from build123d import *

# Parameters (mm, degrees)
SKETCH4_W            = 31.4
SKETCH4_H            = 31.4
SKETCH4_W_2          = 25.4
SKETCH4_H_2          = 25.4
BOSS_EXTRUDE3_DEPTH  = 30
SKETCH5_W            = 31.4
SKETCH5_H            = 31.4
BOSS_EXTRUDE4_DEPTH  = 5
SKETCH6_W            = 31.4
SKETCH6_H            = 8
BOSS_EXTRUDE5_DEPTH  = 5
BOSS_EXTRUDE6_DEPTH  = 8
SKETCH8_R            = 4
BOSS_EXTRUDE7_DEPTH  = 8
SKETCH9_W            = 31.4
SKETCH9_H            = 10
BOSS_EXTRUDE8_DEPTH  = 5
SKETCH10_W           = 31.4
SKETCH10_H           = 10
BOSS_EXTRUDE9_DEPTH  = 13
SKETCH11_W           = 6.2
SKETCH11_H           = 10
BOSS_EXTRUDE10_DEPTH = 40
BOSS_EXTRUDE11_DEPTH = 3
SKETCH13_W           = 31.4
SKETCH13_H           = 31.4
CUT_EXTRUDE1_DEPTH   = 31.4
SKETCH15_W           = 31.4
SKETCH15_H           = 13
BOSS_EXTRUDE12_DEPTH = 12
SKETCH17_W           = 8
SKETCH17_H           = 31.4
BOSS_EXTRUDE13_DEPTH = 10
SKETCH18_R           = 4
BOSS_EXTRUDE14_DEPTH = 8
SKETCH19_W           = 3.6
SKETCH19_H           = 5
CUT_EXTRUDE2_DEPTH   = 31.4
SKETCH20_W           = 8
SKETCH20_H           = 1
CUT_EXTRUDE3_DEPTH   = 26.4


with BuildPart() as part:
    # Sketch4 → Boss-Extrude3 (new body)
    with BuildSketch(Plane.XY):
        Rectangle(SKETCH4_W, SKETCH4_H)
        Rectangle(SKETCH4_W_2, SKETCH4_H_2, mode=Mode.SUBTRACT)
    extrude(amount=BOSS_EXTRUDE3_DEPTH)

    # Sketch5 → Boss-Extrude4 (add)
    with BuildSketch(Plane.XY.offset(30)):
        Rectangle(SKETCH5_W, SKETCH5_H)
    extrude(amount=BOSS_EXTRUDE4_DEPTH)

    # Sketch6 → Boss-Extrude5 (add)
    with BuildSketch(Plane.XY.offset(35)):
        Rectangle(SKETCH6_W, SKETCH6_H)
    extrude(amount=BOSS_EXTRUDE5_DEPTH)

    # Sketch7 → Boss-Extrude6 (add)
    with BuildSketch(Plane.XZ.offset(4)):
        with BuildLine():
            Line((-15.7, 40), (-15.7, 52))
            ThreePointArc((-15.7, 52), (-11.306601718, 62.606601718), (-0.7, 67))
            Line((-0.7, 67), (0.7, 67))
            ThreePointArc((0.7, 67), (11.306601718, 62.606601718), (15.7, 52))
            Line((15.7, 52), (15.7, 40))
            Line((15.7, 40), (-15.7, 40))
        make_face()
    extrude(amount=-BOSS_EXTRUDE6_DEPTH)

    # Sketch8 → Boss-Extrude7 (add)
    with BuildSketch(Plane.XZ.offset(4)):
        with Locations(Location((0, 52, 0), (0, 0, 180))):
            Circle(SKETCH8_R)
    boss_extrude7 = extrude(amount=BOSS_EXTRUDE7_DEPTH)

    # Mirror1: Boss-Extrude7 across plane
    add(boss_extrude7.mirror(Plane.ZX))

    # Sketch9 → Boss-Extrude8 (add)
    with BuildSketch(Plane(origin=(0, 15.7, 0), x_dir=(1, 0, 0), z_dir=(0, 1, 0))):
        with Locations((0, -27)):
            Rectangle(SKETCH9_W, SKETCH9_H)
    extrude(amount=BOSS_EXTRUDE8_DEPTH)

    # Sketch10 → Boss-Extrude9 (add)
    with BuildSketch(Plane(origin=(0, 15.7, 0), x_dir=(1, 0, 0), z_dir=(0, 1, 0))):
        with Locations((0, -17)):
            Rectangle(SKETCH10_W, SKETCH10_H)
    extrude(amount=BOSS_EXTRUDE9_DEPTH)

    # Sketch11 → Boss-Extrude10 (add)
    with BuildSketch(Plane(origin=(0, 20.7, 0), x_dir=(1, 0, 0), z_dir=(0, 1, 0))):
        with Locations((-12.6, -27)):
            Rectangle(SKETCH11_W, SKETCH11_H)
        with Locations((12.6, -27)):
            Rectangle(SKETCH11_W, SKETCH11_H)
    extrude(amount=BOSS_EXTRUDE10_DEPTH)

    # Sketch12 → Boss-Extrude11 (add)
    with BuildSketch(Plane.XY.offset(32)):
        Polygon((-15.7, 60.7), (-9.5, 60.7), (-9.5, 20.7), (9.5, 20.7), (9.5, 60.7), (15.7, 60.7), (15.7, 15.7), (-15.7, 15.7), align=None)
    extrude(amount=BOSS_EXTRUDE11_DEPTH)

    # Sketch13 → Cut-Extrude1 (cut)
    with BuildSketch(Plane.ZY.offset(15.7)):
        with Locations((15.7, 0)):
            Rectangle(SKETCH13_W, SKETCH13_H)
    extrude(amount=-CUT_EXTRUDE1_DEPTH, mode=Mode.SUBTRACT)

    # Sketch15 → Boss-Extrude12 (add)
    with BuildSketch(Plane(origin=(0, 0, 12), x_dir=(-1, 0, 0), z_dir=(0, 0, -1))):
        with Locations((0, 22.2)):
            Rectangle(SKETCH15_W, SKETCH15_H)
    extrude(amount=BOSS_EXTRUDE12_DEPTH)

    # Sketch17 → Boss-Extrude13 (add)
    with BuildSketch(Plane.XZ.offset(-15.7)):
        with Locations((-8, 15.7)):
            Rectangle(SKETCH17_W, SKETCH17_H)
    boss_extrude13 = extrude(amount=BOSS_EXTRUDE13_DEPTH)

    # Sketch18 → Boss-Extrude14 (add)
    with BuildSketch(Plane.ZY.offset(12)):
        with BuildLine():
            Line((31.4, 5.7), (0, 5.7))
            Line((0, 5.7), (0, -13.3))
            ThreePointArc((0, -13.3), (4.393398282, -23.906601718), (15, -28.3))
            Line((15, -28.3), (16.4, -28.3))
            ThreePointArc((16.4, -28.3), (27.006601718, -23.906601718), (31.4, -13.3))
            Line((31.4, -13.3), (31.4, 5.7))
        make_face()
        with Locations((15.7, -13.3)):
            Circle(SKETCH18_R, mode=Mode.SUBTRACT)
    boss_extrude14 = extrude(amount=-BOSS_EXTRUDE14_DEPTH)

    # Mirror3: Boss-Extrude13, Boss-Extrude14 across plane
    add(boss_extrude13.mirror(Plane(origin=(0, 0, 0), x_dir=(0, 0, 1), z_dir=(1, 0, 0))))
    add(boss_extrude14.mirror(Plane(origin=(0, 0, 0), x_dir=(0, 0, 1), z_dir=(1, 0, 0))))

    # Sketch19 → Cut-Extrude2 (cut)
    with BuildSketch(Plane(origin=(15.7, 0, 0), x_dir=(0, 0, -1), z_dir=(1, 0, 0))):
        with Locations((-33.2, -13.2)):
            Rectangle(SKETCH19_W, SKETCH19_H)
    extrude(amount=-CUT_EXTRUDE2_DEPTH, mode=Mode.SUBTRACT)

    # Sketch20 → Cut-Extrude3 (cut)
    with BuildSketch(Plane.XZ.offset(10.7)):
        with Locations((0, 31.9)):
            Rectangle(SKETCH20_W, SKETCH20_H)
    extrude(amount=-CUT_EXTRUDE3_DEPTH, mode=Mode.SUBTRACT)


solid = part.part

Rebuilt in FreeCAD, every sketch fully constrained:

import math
import FreeCAD as App
import Part
import Sketcher
Q = App.Units.Quantity


def add_polygon(sketch, points):
    """Adds a closed chain of lines whose ends are joined by coincident constraints."""
    first, n = sketch.GeometryCount, len(points)
    for a, b in zip(points, points[1:] + points[:1]):
        sketch.addGeometry(Part.LineSegment(App.Vector(*a, 0), App.Vector(*b, 0)), False)
    for i in range(n):
        sketch.addConstraint(Sketcher.Constraint("Coincident", first + i, 2, first + (i + 1) % n, 1))

doc = App.newDocument("Part")
body = doc.addObject("PartDesign::Body", "Body")

# Sketch on XY plane
sketch1 = body.newObject("Sketcher::SketchObject", "Sketch")
sketch1.AttachmentSupport = (doc.getObject("XY_Plane"), [""])
sketch1.MapMode = "FlatFace"
add_polygon(sketch1, [(-16, 16), (-16, -16), (16, -16), (16, 16)])  # lines 0-3
add_polygon(sketch1, [(13, -13), (-13, -13), (-13, 13), (13, 13)])  # lines 4-7
sketch1.addConstraint(Sketcher.Constraint("Vertical", 0))
sketch1.addConstraint(Sketcher.Constraint("Horizontal", 1))
sketch1.addConstraint(Sketcher.Constraint("Vertical", 2))
sketch1.addConstraint(Sketcher.Constraint("Horizontal", 3))
sketch1.addConstraint(Sketcher.Constraint("Horizontal", 4))
sketch1.addConstraint(Sketcher.Constraint("Vertical", 5))
sketch1.addConstraint(Sketcher.Constraint("Horizontal", 6))
sketch1.addConstraint(Sketcher.Constraint("Vertical", 7))
sketch1.addConstraint(Sketcher.Constraint("Symmetric", 0, 2, 2, 2, -1, 1))
sketch1.addConstraint(Sketcher.Constraint("Symmetric", 4, 2, 6, 2, -1, 1))
sketch1.addConstraint(Sketcher.Constraint("Equal", 3, 0))
sketch1.addConstraint(Sketcher.Constraint("Equal", 6, 5))
sketch1.addConstraint(Sketcher.Constraint("DistanceX", 1, 1, 1, 2, Q("31.4 mm")))
sketch1.addConstraint(Sketcher.Constraint("DistanceX", 4, 2, 4, 1, Q("25.4 mm")))
pad1 = body.newObject("PartDesign::Pad", "Pad")
pad1.Profile = sketch1
pad1.Length = 30

# Sketch on XY plane
sketch2 = body.newObject("Sketcher::SketchObject", "Sketch001")
sketch2.AttachmentSupport = (doc.getObject("XY_Plane"), [""])
sketch2.MapMode = "FlatFace"
sketch2.AttachmentOffset = App.Placement(App.Vector(0, 0, 30), App.Rotation())
add_polygon(sketch2, [(-16, 16), (-16, -16), (16, -16), (16, 16)])  # lines 0-3
sketch2.addConstraint(Sketcher.Constraint("Vertical", 0))
sketch2.addConstraint(Sketcher.Constraint("Horizontal", 1))
sketch2.addConstraint(Sketcher.Constraint("Vertical", 2))
sketch2.addConstraint(Sketcher.Constraint("Horizontal", 3))
sketch2.addConstraint(Sketcher.Constraint("Symmetric", 0, 2, 2, 2, -1, 1))
sketch2.addConstraint(Sketcher.Constraint("Equal", 3, 0))
sketch2.addConstraint(Sketcher.Constraint("DistanceX", 1, 1, 1, 2, Q("31.4 mm")))
pad2 = body.newObject("PartDesign::Pad", "Pad001")
pad2.Profile = sketch2
pad2.Length = 5

# Sketch on XY plane
sketch3 = body.newObject("Sketcher::SketchObject", "Sketch002")
sketch3.AttachmentSupport = (doc.getObject("XY_Plane"), [""])
sketch3.MapMode = "FlatFace"
sketch3.AttachmentOffset = App.Placement(App.Vector(0, 0, 35), App.Rotation())
add_polygon(sketch3, [(-16, 4), (-16, -4), (16, -4), (16, 4)])  # lines 0-3
sketch3.addConstraint(Sketcher.Constraint("Vertical", 0))
sketch3.addConstraint(Sketcher.Constraint("Horizontal", 1))
sketch3.addConstraint(Sketcher.Constraint("Vertical", 2))
sketch3.addConstraint(Sketcher.Constraint("Horizontal", 3))
sketch3.addConstraint(Sketcher.Constraint("Symmetric", 0, 2, 2, 2, -1, 1))
sketch3.addConstraint(Sketcher.Constraint("DistanceY", 0, 2, 0, 1, Q("8 mm")))
sketch3.addConstraint(Sketcher.Constraint("DistanceX", 1, 1, 1, 2, Q("31.4 mm")))
pad3 = body.newObject("PartDesign::Pad", "Pad002")
pad3.Profile = sketch3
pad3.Length = 5

# Sketch on XZ plane
sketch4 = body.newObject("Sketcher::SketchObject", "Sketch003")
sketch4.AttachmentSupport = (doc.getObject("XZ_Plane"), [""])
sketch4.MapMode = "FlatFace"
sketch4.AttachmentOffset = App.Placement(App.Vector(0, 0, 4), App.Rotation())
sketch4.addGeometry(Part.LineSegment(App.Vector(-15.7, 52, 0), App.Vector(-15.7, 40, 0)), False)
sketch4.addGeometry(Part.LineSegment(App.Vector(-15.7, 40, 0), App.Vector(15.7, 40, 0)), False)
sketch4.addGeometry(Part.LineSegment(App.Vector(15.7, 40, 0), App.Vector(15.7, 52, 0)), False)
sketch4.addGeometry(Part.ArcOfCircle(Part.Circle(App.Vector(0.7, 52, 0), App.Vector(0, 0, 1), 15), math.radians(0), math.radians(90)), False)
sketch4.addGeometry(Part.LineSegment(App.Vector(0.7, 67, 0), App.Vector(-0.7, 67, 0)), False)
sketch4.addGeometry(Part.ArcOfCircle(Part.Circle(App.Vector(-0.7, 52, 0), App.Vector(0, 0, 1), 15), math.radians(90), math.radians(180)), False)
sketch4.addConstraint(Sketcher.Constraint("Coincident", 0, 2, 1, 1))
sketch4.addConstraint(Sketcher.Constraint("Coincident", 1, 2, 2, 1))
sketch4.addConstraint(Sketcher.Constraint("Tangent", 2, 2, 3, 1))
sketch4.addConstraint(Sketcher.Constraint("Tangent", 3, 2, 4, 1))
sketch4.addConstraint(Sketcher.Constraint("Tangent", 4, 2, 5, 1))
sketch4.addConstraint(Sketcher.Constraint("Tangent", 5, 2, 0, 1))
sketch4.addConstraint(Sketcher.Constraint("Vertical", 0))
sketch4.addConstraint(Sketcher.Constraint("Horizontal", 1))
sketch4.addConstraint(Sketcher.Constraint("Vertical", 2))
sketch4.addConstraint(Sketcher.Constraint("Horizontal", 4))
sketch4.addConstraint(Sketcher.Constraint("Equal", 3, 5))
sketch4.addConstraint(Sketcher.Constraint("Radius", 3, Q("15 mm")))
sketch4.addConstraint(Sketcher.Constraint("DistanceY", 0, 2, 0, 1, Q("12 mm")))
sketch4.addConstraint(Sketcher.Constraint("DistanceX", 1, 1, 1, 2, Q("31.4 mm")))
sketch4.addConstraint(Sketcher.Constraint("DistanceY", -1, 1, 3, 3, Q("52 mm")))
sketch4.addConstraint(Sketcher.Constraint("DistanceX", -1, 1, 3, 3, Q("0.7 mm")))
pad4 = body.newObject("PartDesign::Pad", "Pad003")
pad4.Profile = sketch4
pad4.Length = 8
pad4.Reversed = True

# Sketch on XZ plane
sketch5 = body.newObject("Sketcher::SketchObject", "Sketch004")
sketch5.AttachmentSupport = (doc.getObject("XZ_Plane"), [""])
sketch5.MapMode = "FlatFace"
sketch5.AttachmentOffset = App.Placement(App.Vector(0, 0, 4), App.Rotation())
sketch5.addGeometry(Part.Circle(App.Vector(0, 52, 0), App.Vector(0, 0, 1), 4), False)
sketch5.addConstraint(Sketcher.Constraint("PointOnObject", 0, 3, -2))
sketch5.addConstraint(Sketcher.Constraint("Diameter", 0, Q("8 mm")))
sketch5.addConstraint(Sketcher.Constraint("DistanceY", -1, 1, 0, 3, Q("52 mm")))
pad5 = body.newObject("PartDesign::Pad", "Pad004")
pad5.Profile = sketch5
pad5.Length = 8
doc.recompute()

mirrored = body.newObject("PartDesign::Mirrored", "Mirrored")
mirrored.Originals = [pad5]
mirrored.MirrorPlane = (doc.getObject("XZ_Plane"), [""])
body.Tip = mirrored

# Sketch on XZ plane
sketch6 = body.newObject("Sketcher::SketchObject", "Sketch005")
sketch6.AttachmentSupport = (doc.getObject("XZ_Plane"), [""])
sketch6.MapMode = "FlatFace"
sketch6.AttachmentOffset = App.Placement(App.Vector(0, 0, -15.7), App.Rotation())
add_polygon(sketch6, [(-16, 22), (-16, 32), (16, 32), (16, 22)])  # lines 0-3
sketch6.addConstraint(Sketcher.Constraint("Vertical", 0))
sketch6.addConstraint(Sketcher.Constraint("Horizontal", 1))
sketch6.addConstraint(Sketcher.Constraint("Vertical", 2))
sketch6.addConstraint(Sketcher.Constraint("Horizontal", 3))
sketch6.addConstraint(Sketcher.Constraint("DistanceY", 0, 1, 0, 2, Q("10 mm")))
sketch6.addConstraint(Sketcher.Constraint("DistanceX", 1, 1, 1, 2, Q("31.4 mm")))
sketch6.addConstraint(Sketcher.Constraint("DistanceY", -1, 1, 0, 2, Q("32 mm")))
sketch6.addConstraint(Sketcher.Constraint("DistanceX", 0, 2, -1, 1, Q("15.7 mm")))
pad6 = body.newObject("PartDesign::Pad", "Pad005")
pad6.Profile = sketch6
pad6.Length = 5
pad6.Reversed = True

# Sketch on XZ plane
sketch7 = body.newObject("Sketcher::SketchObject", "Sketch006")
sketch7.AttachmentSupport = (doc.getObject("XZ_Plane"), [""])
sketch7.MapMode = "FlatFace"
sketch7.AttachmentOffset = App.Placement(App.Vector(0, 0, -15.7), App.Rotation())
add_polygon(sketch7, [(-16, 12), (-16, 22), (16, 22), (16, 12)])  # lines 0-3
sketch7.addConstraint(Sketcher.Constraint("Vertical", 0))
sketch7.addConstraint(Sketcher.Constraint("Horizontal", 1))
sketch7.addConstraint(Sketcher.Constraint("Vertical", 2))
sketch7.addConstraint(Sketcher.Constraint("Horizontal", 3))
sketch7.addConstraint(Sketcher.Constraint("DistanceY", 0, 1, 0, 2, Q("10 mm")))
sketch7.addConstraint(Sketcher.Constraint("DistanceX", 1, 1, 1, 2, Q("31.4 mm")))
sketch7.addConstraint(Sketcher.Constraint("DistanceY", -1, 1, 0, 2, Q("22 mm")))
sketch7.addConstraint(Sketcher.Constraint("DistanceX", 0, 2, -1, 1, Q("15.7 mm")))
pad7 = body.newObject("PartDesign::Pad", "Pad006")
pad7.Profile = sketch7
pad7.Length = 13
pad7.Reversed = True

# Sketch on XZ plane
sketch8 = body.newObject("Sketcher::SketchObject", "Sketch007")
sketch8.AttachmentSupport = (doc.getObject("XZ_Plane"), [""])
sketch8.MapMode = "FlatFace"
sketch8.AttachmentOffset = App.Placement(App.Vector(0, 0, -20.7), App.Rotation())
add_polygon(sketch8, [(-16, 22), (-16, 32), (-10, 32), (-10, 22)])  # lines 0-3
add_polygon(sketch8, [(10, 22), (10, 32), (16, 32), (16, 22)])  # lines 4-7
sketch8.addConstraint(Sketcher.Constraint("Vertical", 0))
sketch8.addConstraint(Sketcher.Constraint("Horizontal", 1))
sketch8.addConstraint(Sketcher.Constraint("Vertical", 2))
sketch8.addConstraint(Sketcher.Constraint("Horizontal", 3))
sketch8.addConstraint(Sketcher.Constraint("Vertical", 4))
sketch8.addConstraint(Sketcher.Constraint("Horizontal", 5))
sketch8.addConstraint(Sketcher.Constraint("Vertical", 6))
sketch8.addConstraint(Sketcher.Constraint("Horizontal", 7))
sketch8.addConstraint(Sketcher.Constraint("Symmetric", 1, 2, 4, 2, -2))
sketch8.addConstraint(Sketcher.Constraint("Symmetric", 3, 2, 6, 2, -2))
sketch8.addConstraint(Sketcher.Constraint("DistanceY", 0, 1, 0, 2, Q("10 mm")))
sketch8.addConstraint(Sketcher.Constraint("DistanceX", 1, 1, 1, 2, Q("6.2 mm")))
sketch8.addConstraint(Sketcher.Constraint("DistanceY", -1, 1, 0, 2, Q("32 mm")))
sketch8.addConstraint(Sketcher.Constraint("DistanceX", 1, 2, 4, 2, Q("19 mm")))
pad8 = body.newObject("PartDesign::Pad", "Pad007")
pad8.Profile = sketch8
pad8.Length = 40
pad8.Reversed = True

# Sketch on XY plane
sketch9 = body.newObject("Sketcher::SketchObject", "Sketch008")
sketch9.AttachmentSupport = (doc.getObject("XY_Plane"), [""])
sketch9.MapMode = "FlatFace"
sketch9.AttachmentOffset = App.Placement(App.Vector(0, 0, 32), App.Rotation())
add_polygon(sketch9, [(-10, 61), (-16, 61), (-16, 16), (16, 16), (16, 61), (10, 61), (10, 21), (-10, 21)])  # lines 0-7
sketch9.addConstraint(Sketcher.Constraint("Horizontal", 0))
sketch9.addConstraint(Sketcher.Constraint("Vertical", 1))
sketch9.addConstraint(Sketcher.Constraint("Horizontal", 2))
sketch9.addConstraint(Sketcher.Constraint("Vertical", 3))
sketch9.addConstraint(Sketcher.Constraint("Horizontal", 4))
sketch9.addConstraint(Sketcher.Constraint("Vertical", 5))
sketch9.addConstraint(Sketcher.Constraint("Horizontal", 6))
sketch9.addConstraint(Sketcher.Constraint("Vertical", 7))
sketch9.addConstraint(Sketcher.Constraint("Symmetric", 0, 2, 3, 2, -2))
sketch9.addConstraint(Sketcher.Constraint("Equal", 0, 4))
sketch9.addConstraint(Sketcher.Constraint("DistanceX", 6, 2, 6, 1, Q("19 mm")))
sketch9.addConstraint(Sketcher.Constraint("DistanceY", 1, 2, 1, 1, Q("45 mm")))
sketch9.addConstraint(Sketcher.Constraint("DistanceY", 5, 2, 5, 1, Q("40 mm")))
sketch9.addConstraint(Sketcher.Constraint("DistanceX", 0, 2, 0, 1, Q("6.2 mm")))
sketch9.addConstraint(Sketcher.Constraint("DistanceY", -1, 1, 0, 2, Q("60.7 mm")))
pad9 = body.newObject("PartDesign::Pad", "Pad008")
pad9.Profile = sketch9
pad9.Length = 3

# Sketch on YZ plane
sketch10 = body.newObject("Sketcher::SketchObject", "Sketch009")
sketch10.AttachmentSupport = (doc.getObject("YZ_Plane"), [""])
sketch10.MapMode = "FlatFace"
sketch10.AttachmentOffset = App.Placement(App.Vector(0, 0, -15.7), App.Rotation())
add_polygon(sketch10, [(16, 0), (-16, 0), (-16, 31), (16, 31)])  # lines 0-3
sketch10.addConstraint(Sketcher.Constraint("Horizontal", 0))
sketch10.addConstraint(Sketcher.Constraint("Vertical", 1))
sketch10.addConstraint(Sketcher.Constraint("Horizontal", 2))
sketch10.addConstraint(Sketcher.Constraint("Vertical", 3))
sketch10.addConstraint(Sketcher.Constraint("Symmetric", 0, 2, 3, 2, -1, 1))
sketch10.addConstraint(Sketcher.Constraint("Equal", 2, 1))
sketch10.addConstraint(Sketcher.Constraint("DistanceX", 0, 2, 0, 1, Q("31.4 mm")))
pocket1 = body.newObject("PartDesign::Pocket", "Pocket")
pocket1.Profile = sketch10
pocket1.Length = 31.4
pocket1.Reversed = True

# Sketch on XY plane
sketch11 = body.newObject("Sketcher::SketchObject", "Sketch010")
sketch11.AttachmentSupport = (doc.getObject("XY_Plane"), [""])
sketch11.MapMode = "FlatFace"
sketch11.AttachmentOffset = App.Placement(App.Vector(0, 0, 12), App.Rotation())
add_polygon(sketch11, [(16, 29), (16, 16), (-16, 16), (-16, 29)])  # lines 0-3
sketch11.addConstraint(Sketcher.Constraint("Vertical", 0))
sketch11.addConstraint(Sketcher.Constraint("Horizontal", 1))
sketch11.addConstraint(Sketcher.Constraint("Vertical", 2))
sketch11.addConstraint(Sketcher.Constraint("Horizontal", 3))
sketch11.addConstraint(Sketcher.Constraint("DistanceY", 0, 2, 0, 1, Q("13 mm")))
sketch11.addConstraint(Sketcher.Constraint("DistanceX", 1, 2, 1, 1, Q("31.4 mm")))
sketch11.addConstraint(Sketcher.Constraint("DistanceX", -1, 1, 0, 2, Q("15.7 mm")))
sketch11.addConstraint(Sketcher.Constraint("DistanceY", -1, 1, 0, 2, Q("15.7 mm")))
pad10 = body.newObject("PartDesign::Pad", "Pad009")
pad10.Profile = sketch11
pad10.Length = 12
pad10.Reversed = True

# Sketch on XZ plane
sketch12 = body.newObject("Sketcher::SketchObject", "Sketch011")
sketch12.AttachmentSupport = (doc.getObject("XZ_Plane"), [""])
sketch12.MapMode = "FlatFace"
sketch12.AttachmentOffset = App.Placement(App.Vector(0, 0, -15.7), App.Rotation())
add_polygon(sketch12, [(-12, 31), (-12, 0), (-4, 0), (-4, 31)])  # lines 0-3
sketch12.addConstraint(Sketcher.Constraint("Vertical", 0))
sketch12.addConstraint(Sketcher.Constraint("Horizontal", 1))
sketch12.addConstraint(Sketcher.Constraint("Vertical", 2))
sketch12.addConstraint(Sketcher.Constraint("Horizontal", 3))
sketch12.addConstraint(Sketcher.Constraint("PointOnObject", 0, 2, -1))
sketch12.addConstraint(Sketcher.Constraint("DistanceX", 1, 1, 1, 2, Q("8 mm")))
sketch12.addConstraint(Sketcher.Constraint("DistanceY", 0, 2, 0, 1, Q("31.4 mm")))
sketch12.addConstraint(Sketcher.Constraint("DistanceX", 0, 2, -1, 1, Q("12 mm")))
pad11 = body.newObject("PartDesign::Pad", "Pad010")
pad11.Profile = sketch12
pad11.Length = 10

# Sketch on YZ plane
sketch13 = body.newObject("Sketcher::SketchObject", "Sketch012")
sketch13.AttachmentSupport = (doc.getObject("YZ_Plane"), [""])
sketch13.MapMode = "FlatFace"
sketch13.AttachmentOffset = App.Placement(App.Vector(0, 0, -12), App.Rotation())
sketch13.addGeometry(Part.LineSegment(App.Vector(5.7, 31.4, 0), App.Vector(5.7, 0, 0)), False)
sketch13.addGeometry(Part.LineSegment(App.Vector(5.7, 0, 0), App.Vector(-13.3, 0, 0)), False)
sketch13.addGeometry(Part.ArcOfCircle(Part.Circle(App.Vector(-13.3, 15, 0), App.Vector(0, 0, 1), 15), math.radians(180), math.radians(270)), False)
sketch13.addGeometry(Part.LineSegment(App.Vector(-28.3, 15, 0), App.Vector(-28.3, 16.4, 0)), False)
sketch13.addGeometry(Part.ArcOfCircle(Part.Circle(App.Vector(-13.3, 16.4, 0), App.Vector(0, 0, 1), 15), math.radians(90), math.radians(180)), False)
sketch13.addGeometry(Part.LineSegment(App.Vector(-13.3, 31.4, 0), App.Vector(5.7, 31.4, 0)), False)
sketch13.addGeometry(Part.Circle(App.Vector(-13.3, 15.7, 0), App.Vector(0, 0, 1), 4), False)
sketch13.addConstraint(Sketcher.Constraint("Coincident", 0, 2, 1, 1))
sketch13.addConstraint(Sketcher.Constraint("Tangent", 1, 2, 2, 2))
sketch13.addConstraint(Sketcher.Constraint("Tangent", 2, 1, 3, 1))
sketch13.addConstraint(Sketcher.Constraint("Tangent", 3, 2, 4, 2))
sketch13.addConstraint(Sketcher.Constraint("Tangent", 4, 1, 5, 1))
sketch13.addConstraint(Sketcher.Constraint("Coincident", 5, 2, 0, 1))
sketch13.addConstraint(Sketcher.Constraint("Vertical", 0))
sketch13.addConstraint(Sketcher.Constraint("Horizontal", 1))
sketch13.addConstraint(Sketcher.Constraint("Vertical", 3))
sketch13.addConstraint(Sketcher.Constraint("Horizontal", 5))
sketch13.addConstraint(Sketcher.Constraint("Equal", 2, 4))
sketch13.addConstraint(Sketcher.Constraint("PointOnObject", 0, 2, -1))
sketch13.addConstraint(Sketcher.Constraint("Vertical", 4, 3, 6, 3))
sketch13.addConstraint(Sketcher.Constraint("Diameter", 6, Q("8 mm")))
sketch13.addConstraint(Sketcher.Constraint("Radius", 2, Q("15 mm")))
sketch13.addConstraint(Sketcher.Constraint("DistanceX", 1, 2, 1, 1, Q("19 mm")))
sketch13.addConstraint(Sketcher.Constraint("DistanceY", 0, 2, 0, 1, Q("31.4 mm")))
sketch13.addConstraint(Sketcher.Constraint("DistanceX", 2, 3, -1, 1, Q("13.3 mm")))
sketch13.addConstraint(Sketcher.Constraint("DistanceY", -1, 1, 6, 3, Q("15.7 mm")))
pad12 = body.newObject("PartDesign::Pad", "Pad011")
pad12.Profile = sketch13
pad12.Length = 8
doc.recompute()

mirrored2 = body.newObject("PartDesign::Mirrored", "Mirrored001")
mirrored2.Originals = [pad11, pad12]
mirrored2.MirrorPlane = (doc.getObject("YZ_Plane"), [""])
body.Tip = mirrored2

# Sketch on YZ plane
sketch14 = body.newObject("Sketcher::SketchObject", "Sketch013")
sketch14.AttachmentSupport = (doc.getObject("YZ_Plane"), [""])
sketch14.MapMode = "FlatFace"
sketch14.AttachmentOffset = App.Placement(App.Vector(0, 0, 15.7), App.Rotation())
add_polygon(sketch14, [(-10.7, 35), (-15.7, 35), (-15.7, 31.4), (-10.7, 31.4)])  # lines 0-3
sketch14.addConstraint(Sketcher.Constraint("Horizontal", 0))
sketch14.addConstraint(Sketcher.Constraint("Vertical", 1))
sketch14.addConstraint(Sketcher.Constraint("Horizontal", 2))
sketch14.addConstraint(Sketcher.Constraint("Vertical", 3))
sketch14.addConstraint(Sketcher.Constraint("DistanceX", 0, 2, 0, 1, Q("5 mm")))
sketch14.addConstraint(Sketcher.Constraint("DistanceY", 1, 2, 1, 1, Q("3.6 mm")))
sketch14.addConstraint(Sketcher.Constraint("DistanceY", -1, 1, 0, 2, Q("35 mm")))
sketch14.addConstraint(Sketcher.Constraint("DistanceX", 0, 2, -1, 1, Q("15.7 mm")))
pocket2 = body.newObject("PartDesign::Pocket", "Pocket001")
pocket2.Profile = sketch14
pocket2.Length = 31.4

# Sketch on XZ plane
sketch15 = body.newObject("Sketcher::SketchObject", "Sketch014")
sketch15.AttachmentSupport = (doc.getObject("XZ_Plane"), [""])
sketch15.MapMode = "FlatFace"
sketch15.AttachmentOffset = App.Placement(App.Vector(0, 0, 10.7), App.Rotation())
add_polygon(sketch15, [(-4, 32.4), (-4, 31.4), (4, 31.4), (4, 32.4)])  # lines 0-3
sketch15.addConstraint(Sketcher.Constraint("Vertical", 0))
sketch15.addConstraint(Sketcher.Constraint("Horizontal", 1))
sketch15.addConstraint(Sketcher.Constraint("Vertical", 2))
sketch15.addConstraint(Sketcher.Constraint("Horizontal", 3))
sketch15.addConstraint(Sketcher.Constraint("DistanceX", 1, 1, 1, 2, Q("8 mm")))
sketch15.addConstraint(Sketcher.Constraint("DistanceY", 0, 2, 0, 1, Q("1 mm")))
sketch15.addConstraint(Sketcher.Constraint("DistanceX", 0, 2, -1, 1, Q("4 mm")))
sketch15.addConstraint(Sketcher.Constraint("DistanceY", -1, 1, 0, 2, Q("31.4 mm")))
pocket3 = body.newObject("PartDesign::Pocket", "Pocket002")
pocket3.Profile = sketch15
pocket3.Length = 26.4

doc.recompute()
